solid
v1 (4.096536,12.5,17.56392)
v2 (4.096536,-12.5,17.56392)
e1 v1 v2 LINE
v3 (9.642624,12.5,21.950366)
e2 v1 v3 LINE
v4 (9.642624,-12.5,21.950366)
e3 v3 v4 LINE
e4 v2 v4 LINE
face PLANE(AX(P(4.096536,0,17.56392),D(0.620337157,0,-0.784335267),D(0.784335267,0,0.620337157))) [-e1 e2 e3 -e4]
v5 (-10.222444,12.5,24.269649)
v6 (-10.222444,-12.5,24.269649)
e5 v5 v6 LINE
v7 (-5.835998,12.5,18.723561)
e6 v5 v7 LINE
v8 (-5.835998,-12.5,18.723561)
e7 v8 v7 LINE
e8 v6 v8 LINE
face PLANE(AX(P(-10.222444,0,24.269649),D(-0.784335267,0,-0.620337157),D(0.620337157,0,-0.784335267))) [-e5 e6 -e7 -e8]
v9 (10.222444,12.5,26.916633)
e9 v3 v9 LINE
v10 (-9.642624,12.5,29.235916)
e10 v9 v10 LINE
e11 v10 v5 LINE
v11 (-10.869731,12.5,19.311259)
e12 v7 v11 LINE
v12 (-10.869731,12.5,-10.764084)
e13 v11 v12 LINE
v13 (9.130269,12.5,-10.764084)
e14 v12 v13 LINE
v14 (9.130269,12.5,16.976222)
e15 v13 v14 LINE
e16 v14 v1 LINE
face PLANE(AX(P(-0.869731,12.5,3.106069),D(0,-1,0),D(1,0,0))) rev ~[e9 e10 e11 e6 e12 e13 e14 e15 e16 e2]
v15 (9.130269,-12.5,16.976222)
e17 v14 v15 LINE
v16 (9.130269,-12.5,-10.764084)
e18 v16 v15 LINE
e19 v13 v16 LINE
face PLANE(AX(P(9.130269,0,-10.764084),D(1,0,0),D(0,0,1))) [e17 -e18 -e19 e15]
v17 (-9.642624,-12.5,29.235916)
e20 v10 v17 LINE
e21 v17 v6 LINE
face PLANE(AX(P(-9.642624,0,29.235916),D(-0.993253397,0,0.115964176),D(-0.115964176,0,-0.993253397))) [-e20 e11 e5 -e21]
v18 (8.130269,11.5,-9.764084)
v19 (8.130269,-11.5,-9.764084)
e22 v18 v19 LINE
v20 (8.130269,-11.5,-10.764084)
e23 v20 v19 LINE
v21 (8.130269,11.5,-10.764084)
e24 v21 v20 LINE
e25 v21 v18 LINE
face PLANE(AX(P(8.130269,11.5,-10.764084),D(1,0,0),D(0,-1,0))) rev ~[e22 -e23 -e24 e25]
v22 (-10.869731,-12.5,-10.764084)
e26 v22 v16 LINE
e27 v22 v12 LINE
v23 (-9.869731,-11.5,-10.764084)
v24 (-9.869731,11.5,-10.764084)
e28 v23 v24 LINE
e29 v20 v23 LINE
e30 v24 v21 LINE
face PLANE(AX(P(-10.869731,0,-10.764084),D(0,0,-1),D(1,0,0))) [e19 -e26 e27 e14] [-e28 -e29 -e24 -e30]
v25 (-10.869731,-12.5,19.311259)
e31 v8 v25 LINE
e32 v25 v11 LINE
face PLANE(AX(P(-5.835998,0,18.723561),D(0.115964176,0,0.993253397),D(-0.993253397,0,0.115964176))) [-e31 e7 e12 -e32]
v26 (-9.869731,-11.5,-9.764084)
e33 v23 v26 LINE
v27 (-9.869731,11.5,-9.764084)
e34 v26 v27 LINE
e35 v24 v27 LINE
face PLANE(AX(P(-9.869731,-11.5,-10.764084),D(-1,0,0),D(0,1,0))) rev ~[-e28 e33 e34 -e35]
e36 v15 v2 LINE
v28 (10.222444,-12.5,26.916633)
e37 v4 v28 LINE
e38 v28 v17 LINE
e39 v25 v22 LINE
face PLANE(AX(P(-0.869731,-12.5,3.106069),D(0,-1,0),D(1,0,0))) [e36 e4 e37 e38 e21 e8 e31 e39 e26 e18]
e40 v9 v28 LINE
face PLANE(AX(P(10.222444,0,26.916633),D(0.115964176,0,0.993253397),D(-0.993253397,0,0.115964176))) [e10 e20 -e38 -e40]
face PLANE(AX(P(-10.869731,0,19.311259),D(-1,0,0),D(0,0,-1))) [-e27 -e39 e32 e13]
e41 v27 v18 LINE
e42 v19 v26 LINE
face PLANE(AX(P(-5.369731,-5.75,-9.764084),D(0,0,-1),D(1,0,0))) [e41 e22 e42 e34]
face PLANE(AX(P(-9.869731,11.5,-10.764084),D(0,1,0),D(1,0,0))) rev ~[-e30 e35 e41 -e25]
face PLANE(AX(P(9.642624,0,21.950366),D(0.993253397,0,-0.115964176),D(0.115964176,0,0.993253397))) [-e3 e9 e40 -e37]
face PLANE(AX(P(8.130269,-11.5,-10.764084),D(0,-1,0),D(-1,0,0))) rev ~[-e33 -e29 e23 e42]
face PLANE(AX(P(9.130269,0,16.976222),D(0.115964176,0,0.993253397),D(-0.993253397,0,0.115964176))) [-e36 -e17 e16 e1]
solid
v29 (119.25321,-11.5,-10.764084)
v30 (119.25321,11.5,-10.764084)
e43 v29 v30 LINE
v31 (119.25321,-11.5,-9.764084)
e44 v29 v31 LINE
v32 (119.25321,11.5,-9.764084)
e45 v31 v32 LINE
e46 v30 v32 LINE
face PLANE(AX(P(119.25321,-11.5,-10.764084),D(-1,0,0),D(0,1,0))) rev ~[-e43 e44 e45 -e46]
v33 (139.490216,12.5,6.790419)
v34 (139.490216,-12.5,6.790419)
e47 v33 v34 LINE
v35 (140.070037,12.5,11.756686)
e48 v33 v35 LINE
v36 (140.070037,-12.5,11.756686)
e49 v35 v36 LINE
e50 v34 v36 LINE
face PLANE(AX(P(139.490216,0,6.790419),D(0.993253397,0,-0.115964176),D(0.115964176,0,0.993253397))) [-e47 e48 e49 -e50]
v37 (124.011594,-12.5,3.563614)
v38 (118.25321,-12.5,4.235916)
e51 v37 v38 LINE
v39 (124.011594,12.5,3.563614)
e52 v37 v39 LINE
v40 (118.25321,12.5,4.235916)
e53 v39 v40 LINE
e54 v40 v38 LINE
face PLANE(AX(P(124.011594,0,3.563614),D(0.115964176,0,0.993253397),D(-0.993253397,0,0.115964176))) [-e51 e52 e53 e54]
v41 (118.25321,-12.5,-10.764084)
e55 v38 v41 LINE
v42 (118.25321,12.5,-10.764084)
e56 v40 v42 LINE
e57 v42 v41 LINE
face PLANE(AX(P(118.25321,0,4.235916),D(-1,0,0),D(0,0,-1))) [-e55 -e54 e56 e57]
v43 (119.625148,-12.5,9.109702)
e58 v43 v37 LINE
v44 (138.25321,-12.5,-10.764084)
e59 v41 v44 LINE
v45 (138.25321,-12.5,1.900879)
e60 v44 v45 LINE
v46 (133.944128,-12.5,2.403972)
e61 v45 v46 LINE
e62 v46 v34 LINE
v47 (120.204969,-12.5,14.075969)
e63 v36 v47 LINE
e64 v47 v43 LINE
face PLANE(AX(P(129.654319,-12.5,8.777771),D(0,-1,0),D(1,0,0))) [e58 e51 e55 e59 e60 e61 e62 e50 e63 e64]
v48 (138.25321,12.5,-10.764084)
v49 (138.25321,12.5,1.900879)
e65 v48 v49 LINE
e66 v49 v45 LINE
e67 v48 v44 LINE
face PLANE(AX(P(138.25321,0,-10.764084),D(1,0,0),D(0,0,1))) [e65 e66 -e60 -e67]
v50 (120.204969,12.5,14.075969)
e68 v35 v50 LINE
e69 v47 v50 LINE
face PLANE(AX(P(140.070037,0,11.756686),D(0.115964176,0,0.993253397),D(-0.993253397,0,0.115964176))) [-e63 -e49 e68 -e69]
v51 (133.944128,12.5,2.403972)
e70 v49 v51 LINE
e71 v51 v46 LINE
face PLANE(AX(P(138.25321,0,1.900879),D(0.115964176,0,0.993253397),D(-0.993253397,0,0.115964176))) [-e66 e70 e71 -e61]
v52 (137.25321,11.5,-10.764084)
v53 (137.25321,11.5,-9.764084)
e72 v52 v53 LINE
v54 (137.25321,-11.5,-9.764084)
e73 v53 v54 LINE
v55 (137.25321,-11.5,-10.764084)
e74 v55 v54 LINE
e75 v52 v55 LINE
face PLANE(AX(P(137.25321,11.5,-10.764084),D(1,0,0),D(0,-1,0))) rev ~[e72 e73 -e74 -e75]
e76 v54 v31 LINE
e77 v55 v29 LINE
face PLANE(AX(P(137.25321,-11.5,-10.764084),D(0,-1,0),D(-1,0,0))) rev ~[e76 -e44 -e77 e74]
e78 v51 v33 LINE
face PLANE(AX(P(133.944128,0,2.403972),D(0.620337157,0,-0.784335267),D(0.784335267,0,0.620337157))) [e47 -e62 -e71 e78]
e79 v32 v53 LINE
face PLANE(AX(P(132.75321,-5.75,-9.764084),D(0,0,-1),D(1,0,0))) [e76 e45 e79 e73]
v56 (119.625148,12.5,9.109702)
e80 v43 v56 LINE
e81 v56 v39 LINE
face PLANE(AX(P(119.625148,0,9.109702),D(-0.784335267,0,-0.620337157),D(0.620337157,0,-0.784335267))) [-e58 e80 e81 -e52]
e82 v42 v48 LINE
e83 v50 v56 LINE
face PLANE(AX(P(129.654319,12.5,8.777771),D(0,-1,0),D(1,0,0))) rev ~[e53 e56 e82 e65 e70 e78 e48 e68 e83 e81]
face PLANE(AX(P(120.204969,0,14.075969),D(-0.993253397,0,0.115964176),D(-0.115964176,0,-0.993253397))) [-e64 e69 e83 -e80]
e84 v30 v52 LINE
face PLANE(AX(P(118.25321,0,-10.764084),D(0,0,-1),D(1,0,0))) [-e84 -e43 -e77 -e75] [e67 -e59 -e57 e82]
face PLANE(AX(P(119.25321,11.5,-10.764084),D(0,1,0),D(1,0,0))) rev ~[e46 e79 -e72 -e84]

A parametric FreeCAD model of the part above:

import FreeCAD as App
import Part
import Sketcher


def add_polygon(sketch, points):
    """Adds a closed chain of lines whose ends are joined by coincident constraints."""
    first, n = sketch.GeometryCount, len(points)
    for a, b in zip(points, points[1:] + points[:1]):
        sketch.addGeometry(Part.LineSegment(App.Vector(*a, 0), App.Vector(*b, 0)), False)
    for i in range(n):
        sketch.addConstraint(Sketcher.Constraint("Coincident", first + i, 2, first + (i + 1) % n, 1))

doc = App.newDocument("Part")
body = doc.addObject("PartDesign::Body", "Body")

sketch1 = body.newObject("Sketcher::SketchObject", "Sketch")
sketch1.AttachmentSupport = (doc.getObject("XZ_Plane"), [""])
sketch1.MapMode = "FlatFace"
add_polygon(sketch1, [(-10.869731, -10.764084), (9.130269, -10.764084), (9.130269, 16.976222), (4.096536, 17.56392), (9.642624, 21.950366), (10.222444, 26.916633), (-9.642624, 29.235916), (-10.222444, 24.269649), (-5.835998, 18.723561), (-10.869731, 19.311259)])
sketch1.addConstraint(Sketcher.Constraint("Horizontal", 0))
sketch1.addConstraint(Sketcher.Constraint("Vertical", 1))
sketch1.addConstraint(Sketcher.Constraint("Vertical", 9))
sketch1.addConstraint(Sketcher.Constraint("Perpendicular", 2, 4))
sketch1.addConstraint(Sketcher.Constraint("Perpendicular", 4, 5))
sketch1.addConstraint(Sketcher.Constraint("Perpendicular", 5, 6))
sketch1.addConstraint(Sketcher.Constraint("Perpendicular", 3, 7))
sketch1.addConstraint(Sketcher.Constraint("Perpendicular", 6, 8))
sketch1.addConstraint(Sketcher.Constraint("Equal", 4, 6))
sketch1.addConstraint(Sketcher.Constraint("Equal", 3, 7))
sketch1.addConstraint(Sketcher.Constraint("Equal", 2, 8))
sketch1.addConstraint(Sketcher.Constraint("DistanceX", 0, 1, 0, 2, 20.0))
sketch1.addConstraint(Sketcher.Constraint("Distance", 4, 5.0))
sketch1.addConstraint(Sketcher.Constraint("Distance", 5, 20.0))
sketch1.addConstraint(Sketcher.Constraint("DistanceY", 0, 2, 5, 2, 40.0))
sketch1.addConstraint(Sketcher.Constraint("DistanceX", 7, 2, -1, 1, 5.835998))
sketch1.addConstraint(Sketcher.Constraint("DistanceY", 1, 1, 1, 2, 27.740306))
sketch1.addConstraint(Sketcher.Constraint("DistanceY", 9, 2, 9, 1, 30.075343))
sketch1.addConstraint(Sketcher.Constraint("DistanceX", -1, 1, 0, 2, 9.130269))
sketch1.addConstraint(Sketcher.Constraint("DistanceY", -1, 1, 1, 2, 16.976222))
pad1 = body.newObject("PartDesign::Pad", "Pad")
pad1.Profile = sketch1
pad1.Length = 25
pad1.Midplane = True

sketch2 = body.newObject("Sketcher::SketchObject", "Sketch001")
sketch2.AttachmentSupport = (doc.getObject("XY_Plane"), [""])
sketch2.MapMode = "FlatFace"
sketch2.AttachmentOffset = App.Placement(App.Vector(0, 0, -10.764084), App.Rotation())
add_polygon(sketch2, [(-9.869731, -11.5), (-9.869731, 11.5), (8.130269, 11.5), (8.130269, -11.5)])
sketch2.addConstraint(Sketcher.Constraint("Vertical", 0))
sketch2.addConstraint(Sketcher.Constraint("Horizontal", 1))
sketch2.addConstraint(Sketcher.Constraint("Vertical", 2))
sketch2.addConstraint(Sketcher.Constraint("Horizontal", 3))
sketch2.addConstraint(Sketcher.Constraint("DistanceX", 1, 1, 1, 2, 18.0))
sketch2.addConstraint(Sketcher.Constraint("DistanceY", 0, 1, 0, 2, 23.0))
sketch2.addConstraint(Sketcher.Constraint("DistanceY", -1, 1, 0, 2, 11.5))
sketch2.addConstraint(Sketcher.Constraint("DistanceX", 0, 2, -1, 1, 9.869731))
pocket1 = body.newObject("PartDesign::Pocket", "Pocket")
pocket1.Profile = sketch2
pocket1.Length = 1
pocket1.Reversed = True
body2 = doc.addObject("PartDesign::Body", "Body001")

sketch3 = body2.newObject("Sketcher::SketchObject", "Sketch002")
sketch3.AttachmentSupport = (doc.getObject("XZ_Plane001"), [""])
sketch3.MapMode = "FlatFace"
add_polygon(sketch3, [(124.011594, 3.563614), (118.25321, 4.235916), (118.25321, -10.764084), (138.25321, -10.764084), (138.25321, 1.900879), (133.944128, 2.403972), (139.490216, 6.790419), (140.070037, 11.756686), (120.204969, 14.075969), (119.625148, 9.109702)])
sketch3.addConstraint(Sketcher.Constraint("Vertical", 1))
sketch3.addConstraint(Sketcher.Constraint("Horizontal", 2))
sketch3.addConstraint(Sketcher.Constraint("Vertical", 3))
sketch3.addConstraint(Sketcher.Constraint("Parallel", 0, 4))
sketch3.addConstraint(Sketcher.Constraint("Perpendicular", 4, 6))
sketch3.addConstraint(Sketcher.Constraint("Perpendicular", 6, 7))
sketch3.addConstraint(Sketcher.Constraint("Perpendicular", 7, 8))
sketch3.addConstraint(Sketcher.Constraint("Perpendicular", 5, 9))
sketch3.addConstraint(Sketcher.Constraint("Equal", 6, 8))
sketch3.addConstraint(Sketcher.Constraint("Equal", 5, 9))
sketch3.addConstraint(Sketcher.Constraint("DistanceX", 2, 1, 2, 2, 20.0))
sketch3.addConstraint(Sketcher.Constraint("DistanceY", 1, 2, 1, 1, 15.0))
sketch3.addConstraint(Sketcher.Constraint("Distance", 6, 5.0))
sketch3.addConstraint(Sketcher.Constraint("Distance", 7, 20.0))
sketch3.addConstraint(Sketcher.Constraint("DistanceY", 9, 2, 0, 2, 0.672302))
sketch3.addConstraint(Sketcher.Constraint("Distance", 4, 4.338351))
sketch3.addConstraint(Sketcher.Constraint("DistanceY", 3, 1, 3, 2, 12.664963))
sketch3.addConstraint(Sketcher.Constraint("DistanceX", -1, 1, 0, 2, 118.25321))
sketch3.addConstraint(Sketcher.Constraint("DistanceY", -1, 1, 3, 2, 1.900879))
sketch3.addConstraint(Sketcher.Constraint("DistanceX", -1, 1, 4, 2, 133.944128))
pad2 = body2.newObject("PartDesign::Pad", "Pad001")
pad2.Profile = sketch3
pad2.Length = 25
pad2.Midplane = True

sketch4 = body2.newObject("Sketcher::SketchObject", "Sketch003")
sketch4.AttachmentSupport = (doc.getObject("XY_Plane001"), [""])
sketch4.MapMode = "FlatFace"
sketch4.AttachmentOffset = App.Placement(App.Vector(0, 0, -10.764084), App.Rotation())
add_polygon(sketch4, [(119.25321, 11.5), (137.25321, 11.5), (137.25321, -11.5), (119.25321, -11.5)])
sketch4.addConstraint(Sketcher.Constraint("Horizontal", 0))
sketch4.addConstraint(Sketcher.Constraint("Vertical", 1))
sketch4.addConstraint(Sketcher.Constraint("Horizontal", 2))
sketch4.addConstraint(Sketcher.Constraint("Vertical", 3))
sketch4.addConstraint(Sketcher.Constraint("DistanceX", 0, 1, 0, 2, 18.0))
sketch4.addConstraint(Sketcher.Constraint("DistanceY", 1, 2, 1, 1, 23.0))
sketch4.addConstraint(Sketcher.Constraint("DistanceY", -1, 1, 0, 2, 11.5))
sketch4.addConstraint(Sketcher.Constraint("DistanceX", -1, 1, 0, 2, 137.25321))
pocket2 = body2.newObject("PartDesign::Pocket", "Pocket001")
pocket2.Profile = sketch4
pocket2.Length = 1
pocket2.Reversed = True

doc.recompute()
